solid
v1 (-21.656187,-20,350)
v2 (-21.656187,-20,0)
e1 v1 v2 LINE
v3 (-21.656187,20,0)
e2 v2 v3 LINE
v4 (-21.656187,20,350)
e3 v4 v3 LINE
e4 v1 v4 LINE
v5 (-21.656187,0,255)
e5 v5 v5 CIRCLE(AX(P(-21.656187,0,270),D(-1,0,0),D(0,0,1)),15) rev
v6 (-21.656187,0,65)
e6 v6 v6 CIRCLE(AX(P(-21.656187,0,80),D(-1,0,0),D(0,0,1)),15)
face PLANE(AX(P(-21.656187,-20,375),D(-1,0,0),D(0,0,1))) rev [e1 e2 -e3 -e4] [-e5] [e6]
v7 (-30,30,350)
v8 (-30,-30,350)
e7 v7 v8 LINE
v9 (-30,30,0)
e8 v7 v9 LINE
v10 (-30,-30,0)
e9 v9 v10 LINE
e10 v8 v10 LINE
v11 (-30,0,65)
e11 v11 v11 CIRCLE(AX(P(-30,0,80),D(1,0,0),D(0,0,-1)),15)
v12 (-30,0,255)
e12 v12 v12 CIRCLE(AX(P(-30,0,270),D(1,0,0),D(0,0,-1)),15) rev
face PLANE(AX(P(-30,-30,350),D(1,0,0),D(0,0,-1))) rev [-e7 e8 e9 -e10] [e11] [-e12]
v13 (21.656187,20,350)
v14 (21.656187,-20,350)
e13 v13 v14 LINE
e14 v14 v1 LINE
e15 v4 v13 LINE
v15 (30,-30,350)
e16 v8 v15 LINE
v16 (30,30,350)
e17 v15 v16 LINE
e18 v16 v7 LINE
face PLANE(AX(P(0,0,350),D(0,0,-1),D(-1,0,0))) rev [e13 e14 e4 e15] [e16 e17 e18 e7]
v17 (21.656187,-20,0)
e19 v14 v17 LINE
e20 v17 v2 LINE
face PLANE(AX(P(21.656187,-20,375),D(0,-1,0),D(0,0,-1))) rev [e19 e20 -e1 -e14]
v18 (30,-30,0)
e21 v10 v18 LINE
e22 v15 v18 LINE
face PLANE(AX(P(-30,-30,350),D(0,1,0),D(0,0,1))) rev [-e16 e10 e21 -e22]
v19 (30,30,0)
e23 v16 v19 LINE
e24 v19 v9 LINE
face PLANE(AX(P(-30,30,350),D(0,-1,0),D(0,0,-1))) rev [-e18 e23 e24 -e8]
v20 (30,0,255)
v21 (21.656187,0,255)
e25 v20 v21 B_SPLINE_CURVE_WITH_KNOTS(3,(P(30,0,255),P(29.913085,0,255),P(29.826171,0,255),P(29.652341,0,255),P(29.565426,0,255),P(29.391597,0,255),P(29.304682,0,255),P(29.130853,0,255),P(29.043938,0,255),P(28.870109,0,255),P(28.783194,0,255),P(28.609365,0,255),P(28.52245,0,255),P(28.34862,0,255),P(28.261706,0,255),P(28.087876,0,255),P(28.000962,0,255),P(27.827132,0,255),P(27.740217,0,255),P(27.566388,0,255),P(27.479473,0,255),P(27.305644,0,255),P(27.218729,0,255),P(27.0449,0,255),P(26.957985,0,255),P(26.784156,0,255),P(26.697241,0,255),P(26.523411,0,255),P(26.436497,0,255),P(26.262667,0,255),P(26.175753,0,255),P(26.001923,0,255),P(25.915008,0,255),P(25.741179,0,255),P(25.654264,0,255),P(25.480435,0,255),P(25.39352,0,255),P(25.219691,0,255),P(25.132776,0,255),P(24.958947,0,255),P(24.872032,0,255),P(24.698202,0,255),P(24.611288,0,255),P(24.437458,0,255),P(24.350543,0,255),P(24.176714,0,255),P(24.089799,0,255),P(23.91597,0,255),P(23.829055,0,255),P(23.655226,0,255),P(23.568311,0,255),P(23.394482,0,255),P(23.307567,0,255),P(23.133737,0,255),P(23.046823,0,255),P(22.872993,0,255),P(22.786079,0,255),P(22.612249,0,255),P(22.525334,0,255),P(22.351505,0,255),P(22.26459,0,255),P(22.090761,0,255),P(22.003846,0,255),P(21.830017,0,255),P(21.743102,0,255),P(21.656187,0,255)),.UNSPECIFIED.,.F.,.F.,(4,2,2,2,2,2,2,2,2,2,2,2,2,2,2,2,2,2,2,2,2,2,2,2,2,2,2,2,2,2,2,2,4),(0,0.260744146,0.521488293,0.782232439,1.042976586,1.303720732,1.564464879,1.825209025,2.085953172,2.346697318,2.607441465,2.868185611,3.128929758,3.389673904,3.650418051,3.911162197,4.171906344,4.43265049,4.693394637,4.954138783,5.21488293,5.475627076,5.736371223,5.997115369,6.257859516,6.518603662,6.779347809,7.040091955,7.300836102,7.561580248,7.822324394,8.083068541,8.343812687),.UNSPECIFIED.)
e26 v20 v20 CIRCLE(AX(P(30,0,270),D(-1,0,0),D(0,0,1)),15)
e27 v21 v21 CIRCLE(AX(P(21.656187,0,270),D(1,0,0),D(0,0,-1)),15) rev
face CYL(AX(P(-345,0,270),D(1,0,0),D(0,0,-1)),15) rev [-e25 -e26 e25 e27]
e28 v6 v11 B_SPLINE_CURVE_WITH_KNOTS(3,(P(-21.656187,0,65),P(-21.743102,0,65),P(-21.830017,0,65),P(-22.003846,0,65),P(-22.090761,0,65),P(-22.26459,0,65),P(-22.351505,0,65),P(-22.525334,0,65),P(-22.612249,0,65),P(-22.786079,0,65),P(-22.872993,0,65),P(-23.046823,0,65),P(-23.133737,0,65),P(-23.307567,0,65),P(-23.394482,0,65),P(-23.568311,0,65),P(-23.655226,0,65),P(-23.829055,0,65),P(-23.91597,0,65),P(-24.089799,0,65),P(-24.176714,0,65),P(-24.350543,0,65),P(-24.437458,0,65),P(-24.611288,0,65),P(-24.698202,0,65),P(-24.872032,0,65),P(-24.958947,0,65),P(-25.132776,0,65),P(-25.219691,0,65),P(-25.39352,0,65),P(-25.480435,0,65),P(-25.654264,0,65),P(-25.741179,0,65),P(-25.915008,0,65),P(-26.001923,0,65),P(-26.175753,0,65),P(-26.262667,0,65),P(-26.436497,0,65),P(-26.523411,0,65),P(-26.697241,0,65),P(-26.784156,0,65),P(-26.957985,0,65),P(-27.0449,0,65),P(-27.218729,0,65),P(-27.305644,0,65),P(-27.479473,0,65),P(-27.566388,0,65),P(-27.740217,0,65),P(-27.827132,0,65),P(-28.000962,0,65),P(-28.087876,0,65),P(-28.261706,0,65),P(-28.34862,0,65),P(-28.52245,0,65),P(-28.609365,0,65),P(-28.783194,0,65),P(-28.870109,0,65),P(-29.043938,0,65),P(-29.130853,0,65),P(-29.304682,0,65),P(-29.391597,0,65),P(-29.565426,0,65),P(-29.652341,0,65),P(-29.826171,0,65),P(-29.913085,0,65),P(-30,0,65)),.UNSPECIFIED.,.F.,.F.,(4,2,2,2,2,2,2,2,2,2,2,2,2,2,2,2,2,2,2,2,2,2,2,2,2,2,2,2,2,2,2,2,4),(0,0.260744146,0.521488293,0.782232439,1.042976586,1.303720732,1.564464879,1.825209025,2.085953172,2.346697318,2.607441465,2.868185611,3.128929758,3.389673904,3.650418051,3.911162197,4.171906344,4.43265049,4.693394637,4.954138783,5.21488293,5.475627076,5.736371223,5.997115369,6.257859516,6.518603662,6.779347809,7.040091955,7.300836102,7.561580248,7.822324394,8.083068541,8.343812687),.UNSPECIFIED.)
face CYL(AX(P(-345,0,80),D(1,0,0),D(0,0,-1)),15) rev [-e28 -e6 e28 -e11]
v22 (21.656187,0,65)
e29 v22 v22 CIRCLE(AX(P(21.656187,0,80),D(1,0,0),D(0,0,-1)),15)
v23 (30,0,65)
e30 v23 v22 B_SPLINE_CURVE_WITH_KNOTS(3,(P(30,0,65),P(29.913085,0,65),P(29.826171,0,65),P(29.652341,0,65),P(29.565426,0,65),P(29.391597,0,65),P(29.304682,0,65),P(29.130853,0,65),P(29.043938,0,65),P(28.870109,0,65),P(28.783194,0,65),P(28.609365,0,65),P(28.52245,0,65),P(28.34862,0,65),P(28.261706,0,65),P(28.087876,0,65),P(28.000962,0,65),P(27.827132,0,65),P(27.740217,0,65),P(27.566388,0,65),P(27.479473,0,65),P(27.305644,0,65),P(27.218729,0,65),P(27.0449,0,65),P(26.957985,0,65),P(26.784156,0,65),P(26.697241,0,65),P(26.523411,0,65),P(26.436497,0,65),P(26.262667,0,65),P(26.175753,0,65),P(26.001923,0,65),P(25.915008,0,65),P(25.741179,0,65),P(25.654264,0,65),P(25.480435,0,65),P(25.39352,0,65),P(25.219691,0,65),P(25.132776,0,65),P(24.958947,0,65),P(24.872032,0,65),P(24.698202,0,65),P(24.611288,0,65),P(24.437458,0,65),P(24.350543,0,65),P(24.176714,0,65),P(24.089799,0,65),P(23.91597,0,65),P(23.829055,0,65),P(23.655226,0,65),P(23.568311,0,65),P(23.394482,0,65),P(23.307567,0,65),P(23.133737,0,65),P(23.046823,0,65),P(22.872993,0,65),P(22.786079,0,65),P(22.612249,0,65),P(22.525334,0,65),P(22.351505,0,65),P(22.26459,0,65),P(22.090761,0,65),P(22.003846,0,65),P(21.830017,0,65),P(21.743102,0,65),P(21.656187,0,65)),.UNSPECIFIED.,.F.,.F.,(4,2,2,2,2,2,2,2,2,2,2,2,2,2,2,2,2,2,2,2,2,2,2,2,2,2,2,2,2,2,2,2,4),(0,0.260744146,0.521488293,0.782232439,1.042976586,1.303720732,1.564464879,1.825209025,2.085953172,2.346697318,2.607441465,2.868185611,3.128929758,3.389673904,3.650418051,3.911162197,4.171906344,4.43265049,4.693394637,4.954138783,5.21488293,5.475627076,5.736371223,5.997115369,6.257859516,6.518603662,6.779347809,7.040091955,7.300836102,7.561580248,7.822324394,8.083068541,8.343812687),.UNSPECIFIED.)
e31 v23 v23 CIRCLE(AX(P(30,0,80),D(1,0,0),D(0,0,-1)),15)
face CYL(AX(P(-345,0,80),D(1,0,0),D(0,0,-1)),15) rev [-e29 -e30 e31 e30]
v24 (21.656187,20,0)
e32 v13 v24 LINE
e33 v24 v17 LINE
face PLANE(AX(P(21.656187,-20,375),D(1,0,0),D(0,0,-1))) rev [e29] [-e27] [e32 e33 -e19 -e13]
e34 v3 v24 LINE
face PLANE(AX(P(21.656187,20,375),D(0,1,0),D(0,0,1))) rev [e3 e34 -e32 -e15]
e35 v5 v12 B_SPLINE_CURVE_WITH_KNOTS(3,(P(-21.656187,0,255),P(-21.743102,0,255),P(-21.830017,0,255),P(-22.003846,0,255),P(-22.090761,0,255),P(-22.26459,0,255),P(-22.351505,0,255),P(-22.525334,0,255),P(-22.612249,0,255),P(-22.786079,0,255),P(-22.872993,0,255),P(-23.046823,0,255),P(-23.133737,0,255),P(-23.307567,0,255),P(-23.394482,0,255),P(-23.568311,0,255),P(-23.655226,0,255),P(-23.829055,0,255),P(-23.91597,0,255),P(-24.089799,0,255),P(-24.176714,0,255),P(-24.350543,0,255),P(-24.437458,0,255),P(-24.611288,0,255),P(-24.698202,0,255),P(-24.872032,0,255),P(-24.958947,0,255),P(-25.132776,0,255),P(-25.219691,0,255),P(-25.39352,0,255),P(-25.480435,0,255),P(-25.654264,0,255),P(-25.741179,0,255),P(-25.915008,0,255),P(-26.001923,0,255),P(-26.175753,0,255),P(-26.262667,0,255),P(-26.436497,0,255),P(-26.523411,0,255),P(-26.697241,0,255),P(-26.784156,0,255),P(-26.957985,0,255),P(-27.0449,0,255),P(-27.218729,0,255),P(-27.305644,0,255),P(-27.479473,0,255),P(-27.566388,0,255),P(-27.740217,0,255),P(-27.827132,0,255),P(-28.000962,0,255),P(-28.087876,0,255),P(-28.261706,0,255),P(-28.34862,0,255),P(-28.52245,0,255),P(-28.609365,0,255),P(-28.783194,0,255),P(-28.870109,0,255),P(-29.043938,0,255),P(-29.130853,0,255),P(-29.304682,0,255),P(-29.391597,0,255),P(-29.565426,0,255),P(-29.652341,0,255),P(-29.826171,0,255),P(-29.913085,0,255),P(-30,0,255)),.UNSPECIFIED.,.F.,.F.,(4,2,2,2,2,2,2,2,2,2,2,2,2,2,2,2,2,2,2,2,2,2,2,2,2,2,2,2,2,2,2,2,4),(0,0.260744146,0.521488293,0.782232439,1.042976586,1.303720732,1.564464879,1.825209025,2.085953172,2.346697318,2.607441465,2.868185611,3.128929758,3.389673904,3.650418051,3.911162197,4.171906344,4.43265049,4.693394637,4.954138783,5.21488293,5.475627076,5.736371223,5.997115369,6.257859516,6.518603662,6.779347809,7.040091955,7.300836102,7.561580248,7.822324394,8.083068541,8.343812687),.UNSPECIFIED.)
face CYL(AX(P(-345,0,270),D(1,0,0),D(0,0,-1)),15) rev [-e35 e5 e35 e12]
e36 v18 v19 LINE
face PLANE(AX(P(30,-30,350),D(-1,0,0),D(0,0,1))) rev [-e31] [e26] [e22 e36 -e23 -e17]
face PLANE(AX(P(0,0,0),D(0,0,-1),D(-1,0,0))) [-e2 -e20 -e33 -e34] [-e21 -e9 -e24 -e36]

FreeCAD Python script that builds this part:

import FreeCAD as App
import Part
import Sketcher
from FreeCAD import Vector
Q = App.Units.Quantity


def add_polygon(sketch, points):
    """Adds a closed chain of lines whose ends are joined by coincident constraints."""
    first, n = sketch.GeometryCount, len(points)
    for a, b in zip(points, points[1:] + points[:1]):
        sketch.addGeometry(Part.LineSegment(App.Vector(*a, 0), App.Vector(*b, 0)), False)
    for i in range(n):
        sketch.addConstraint(Sketcher.Constraint("Coincident", first + i, 2, first + (i + 1) % n, 1))

doc = App.newDocument("Part")
params = doc.addObject("Spreadsheet::Sheet", "Params")
for row, (alias, value) in enumerate([
    ("sketch1_width", "60 mm"),
    ("pad1_length", "350 mm"),
    ("sketch2_height", "40 mm"),
    ("pocket1_length", "375 mm"),
    ("sketch3_diameter", "30 mm"),
    ("pocket2_length", "375 mm"),
], start=1):
    params.set(f"A{row}", alias)
    params.set(f"B{row}", "=" + value)
    params.setAlias(f"B{row}", alias)

body = doc.addObject("PartDesign::Body", "Body")

# Sketch on XY plane
sketch1 = doc.addObject("Sketcher::SketchObject", "Sketch")
body.addObject(sketch1)
sketch1.AttachmentSupport = (doc.XY_Plane, [""])
sketch1.MapMode = "FlatFace"
add_polygon(sketch1, [(-30, 30), (-30, -30), (30, -30), (30, 30)])  # lines 0-3
sketch1.addConstraint(Sketcher.Constraint("Vertical", 0))
sketch1.addConstraint(Sketcher.Constraint("Horizontal", 1))
sketch1.addConstraint(Sketcher.Constraint("Vertical", 2))
sketch1.addConstraint(Sketcher.Constraint("Horizontal", 3))
sketch1.addConstraint(Sketcher.Constraint("Symmetric", 0, 2, 2, 2, -1, 1))
sketch1.addConstraint(Sketcher.Constraint("Equal", 3, 0))
sketch1.addConstraint(Sketcher.Constraint("DistanceX", 1, 1, 1, 2, Q("60 mm")))
sketch1.setExpression("Constraints[10]", "Params.sketch1_width")
pad1 = doc.addObject("PartDesign::Pad", "Pad")
body.addObject(pad1)
pad1.Profile = sketch1
pad1.setExpression("Length", "Params.pad1_length")

# Sketch on XY plane
sketch2 = doc.addObject("Sketcher::SketchObject", "Sketch001")
body.addObject(sketch2)
sketch2.AttachmentSupport = (doc.XY_Plane, [""])
sketch2.MapMode = "FlatFace"
add_polygon(sketch2, [(22, 20), (22, -20), (-22, -20), (-22, 20)])  # lines 0-3
sketch2.addConstraint(Sketcher.Constraint("Vertical", 0))
sketch2.addConstraint(Sketcher.Constraint("Horizontal", 1))
sketch2.addConstraint(Sketcher.Constraint("Vertical", 2))
sketch2.addConstraint(Sketcher.Constraint("Horizontal", 3))
sketch2.addConstraint(Sketcher.Constraint("Symmetric", 0, 2, 2, 2, -1, 1))
sketch2.addConstraint(Sketcher.Constraint("DistanceY", 0, 2, 0, 1, Q("40 mm")))
sketch2.addConstraint(Sketcher.Constraint("DistanceX", 1, 2, 1, 1, Q("43.312375 mm")))
sketch2.setExpression("Constraints[9]", "Params.sketch2_height")
pocket1 = doc.addObject("PartDesign::Pocket", "Pocket")
body.addObject(pocket1)
pocket1.Profile = sketch2
pocket1.setExpression("Length", "Params.pocket1_length")
pocket1.Reversed = True

# Sketch on YZ plane
sketch3 = doc.addObject("Sketcher::SketchObject", "Sketch002")
body.addObject(sketch3)
sketch3.AttachmentSupport = (doc.YZ_Plane, [""])
sketch3.MapMode = "FlatFace"
sketch3.AttachmentOffset = App.Placement(Vector(0, 0, 30), App.Rotation())
sketch3.addGeometry(Part.Circle(Vector(0, 80, 0), Vector(0, 0, 1), 15), False)
sketch3.addConstraint(Sketcher.Constraint("PointOnObject", 0, 3, -2))
sketch3.addConstraint(Sketcher.Constraint("Diameter", 0, Q("30 mm")))
sketch3.addConstraint(Sketcher.Constraint("DistanceY", -1, 1, 0, 3, Q("80 mm")))
sketch3.setExpression("Constraints[1]", "Params.sketch3_diameter")
pocket2 = doc.addObject("PartDesign::Pocket", "Pocket001")
body.addObject(pocket2)
pocket2.Profile = sketch3
pocket2.setExpression("Length", "Params.pocket2_length")
doc.recompute()

datumplane = doc.addObject("PartDesign::Plane", "DatumPlane")
body.addObject(datumplane)
datumplane.AttachmentSupport = (doc.XY_Plane, [""])
datumplane.MapMode = "FlatFace"
datumplane.AttachmentOffset = App.Placement(Vector(0, 0, 175), App.Rotation())
mirrored = doc.addObject("PartDesign::Mirrored", "Mirrored")
body.addObject(mirrored)
mirrored.Originals = [pocket2]
mirrored.MirrorPlane = (datumplane, [""])
body.Tip = mirrored

doc.recompute()
